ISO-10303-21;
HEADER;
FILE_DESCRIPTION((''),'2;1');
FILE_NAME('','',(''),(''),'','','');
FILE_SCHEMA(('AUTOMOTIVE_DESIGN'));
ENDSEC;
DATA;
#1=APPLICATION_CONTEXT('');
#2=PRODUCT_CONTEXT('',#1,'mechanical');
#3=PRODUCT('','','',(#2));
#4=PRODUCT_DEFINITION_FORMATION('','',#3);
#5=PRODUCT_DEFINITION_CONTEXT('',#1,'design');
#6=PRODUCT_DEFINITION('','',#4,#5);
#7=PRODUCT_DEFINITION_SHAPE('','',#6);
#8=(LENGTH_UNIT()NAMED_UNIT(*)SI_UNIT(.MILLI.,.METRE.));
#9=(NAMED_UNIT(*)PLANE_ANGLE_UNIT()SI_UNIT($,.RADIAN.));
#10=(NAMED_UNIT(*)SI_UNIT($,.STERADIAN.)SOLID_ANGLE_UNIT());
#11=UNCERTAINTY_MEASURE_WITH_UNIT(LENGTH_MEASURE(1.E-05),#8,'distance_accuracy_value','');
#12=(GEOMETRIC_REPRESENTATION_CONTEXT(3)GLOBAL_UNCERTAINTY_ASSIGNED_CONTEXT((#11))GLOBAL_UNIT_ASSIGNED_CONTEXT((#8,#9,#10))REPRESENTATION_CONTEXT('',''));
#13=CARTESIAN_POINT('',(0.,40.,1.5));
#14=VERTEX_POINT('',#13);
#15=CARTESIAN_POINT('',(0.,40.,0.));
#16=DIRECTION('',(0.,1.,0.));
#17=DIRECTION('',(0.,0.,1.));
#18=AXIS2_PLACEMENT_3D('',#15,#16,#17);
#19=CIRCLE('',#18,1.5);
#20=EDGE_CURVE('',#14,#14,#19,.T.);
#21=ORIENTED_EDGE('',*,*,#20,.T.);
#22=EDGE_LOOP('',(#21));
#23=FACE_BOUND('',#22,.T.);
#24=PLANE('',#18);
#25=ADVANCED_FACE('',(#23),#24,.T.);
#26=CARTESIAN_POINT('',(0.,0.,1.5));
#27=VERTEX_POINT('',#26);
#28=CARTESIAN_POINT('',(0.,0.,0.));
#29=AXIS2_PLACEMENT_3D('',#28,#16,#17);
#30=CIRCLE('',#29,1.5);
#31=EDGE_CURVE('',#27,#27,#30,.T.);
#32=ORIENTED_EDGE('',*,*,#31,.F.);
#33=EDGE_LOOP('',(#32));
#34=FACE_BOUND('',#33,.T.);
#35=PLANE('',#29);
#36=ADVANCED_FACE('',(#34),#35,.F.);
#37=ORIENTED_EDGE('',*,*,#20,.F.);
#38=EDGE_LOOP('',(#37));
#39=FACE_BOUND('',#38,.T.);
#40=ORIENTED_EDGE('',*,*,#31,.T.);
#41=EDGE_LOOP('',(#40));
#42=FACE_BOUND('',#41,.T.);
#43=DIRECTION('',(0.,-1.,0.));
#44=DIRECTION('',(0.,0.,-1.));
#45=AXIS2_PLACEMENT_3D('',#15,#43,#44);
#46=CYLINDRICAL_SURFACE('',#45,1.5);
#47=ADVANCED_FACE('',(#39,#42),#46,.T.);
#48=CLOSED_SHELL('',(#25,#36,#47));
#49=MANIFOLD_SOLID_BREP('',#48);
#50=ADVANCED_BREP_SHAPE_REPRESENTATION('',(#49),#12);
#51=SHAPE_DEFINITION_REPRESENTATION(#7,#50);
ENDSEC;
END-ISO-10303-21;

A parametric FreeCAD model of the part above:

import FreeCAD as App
import Part
import Sketcher

V = App.Vector

doc = App.newDocument("Part")
params = doc.addObject("Spreadsheet::Sheet", "Params")
for row, (alias, value) in enumerate([
    ("sketch1_diameter", "3 mm"),
    ("pad1_length", "40 mm"),
], start=1):
    params.set(f"A{row}", alias)
    params.set(f"B{row}", "=" + value)
    params.setAlias(f"B{row}", alias)

body = doc.addObject("PartDesign::Body", "Body")

sketch1 = doc.addObject("Sketcher::SketchObject", "Sketch")
body.addObject(sketch1)
sketch1.AttachmentSupport = (doc.XZ_Plane, [""])
sketch1.MapMode = "FlatFace"
sketch1.addGeometry(Part.Circle(V(0, 0, 0), V(0, 0, 1), 1.5), False)
sketch1.addConstraint([
    Sketcher.Constraint("Coincident", 0, 3, -1, 1),
    Sketcher.Constraint("Diameter", 0, 3.0),
])
sketch1.setExpression("Constraints[1]", "Params.sketch1_diameter")
pad1 = doc.addObject("PartDesign::Pad", "Pad")
body.addObject(pad1)
pad1.Profile = sketch1
pad1.setExpression("Length", "Params.pad1_length")
pad1.Reversed = True

doc.recompute()
